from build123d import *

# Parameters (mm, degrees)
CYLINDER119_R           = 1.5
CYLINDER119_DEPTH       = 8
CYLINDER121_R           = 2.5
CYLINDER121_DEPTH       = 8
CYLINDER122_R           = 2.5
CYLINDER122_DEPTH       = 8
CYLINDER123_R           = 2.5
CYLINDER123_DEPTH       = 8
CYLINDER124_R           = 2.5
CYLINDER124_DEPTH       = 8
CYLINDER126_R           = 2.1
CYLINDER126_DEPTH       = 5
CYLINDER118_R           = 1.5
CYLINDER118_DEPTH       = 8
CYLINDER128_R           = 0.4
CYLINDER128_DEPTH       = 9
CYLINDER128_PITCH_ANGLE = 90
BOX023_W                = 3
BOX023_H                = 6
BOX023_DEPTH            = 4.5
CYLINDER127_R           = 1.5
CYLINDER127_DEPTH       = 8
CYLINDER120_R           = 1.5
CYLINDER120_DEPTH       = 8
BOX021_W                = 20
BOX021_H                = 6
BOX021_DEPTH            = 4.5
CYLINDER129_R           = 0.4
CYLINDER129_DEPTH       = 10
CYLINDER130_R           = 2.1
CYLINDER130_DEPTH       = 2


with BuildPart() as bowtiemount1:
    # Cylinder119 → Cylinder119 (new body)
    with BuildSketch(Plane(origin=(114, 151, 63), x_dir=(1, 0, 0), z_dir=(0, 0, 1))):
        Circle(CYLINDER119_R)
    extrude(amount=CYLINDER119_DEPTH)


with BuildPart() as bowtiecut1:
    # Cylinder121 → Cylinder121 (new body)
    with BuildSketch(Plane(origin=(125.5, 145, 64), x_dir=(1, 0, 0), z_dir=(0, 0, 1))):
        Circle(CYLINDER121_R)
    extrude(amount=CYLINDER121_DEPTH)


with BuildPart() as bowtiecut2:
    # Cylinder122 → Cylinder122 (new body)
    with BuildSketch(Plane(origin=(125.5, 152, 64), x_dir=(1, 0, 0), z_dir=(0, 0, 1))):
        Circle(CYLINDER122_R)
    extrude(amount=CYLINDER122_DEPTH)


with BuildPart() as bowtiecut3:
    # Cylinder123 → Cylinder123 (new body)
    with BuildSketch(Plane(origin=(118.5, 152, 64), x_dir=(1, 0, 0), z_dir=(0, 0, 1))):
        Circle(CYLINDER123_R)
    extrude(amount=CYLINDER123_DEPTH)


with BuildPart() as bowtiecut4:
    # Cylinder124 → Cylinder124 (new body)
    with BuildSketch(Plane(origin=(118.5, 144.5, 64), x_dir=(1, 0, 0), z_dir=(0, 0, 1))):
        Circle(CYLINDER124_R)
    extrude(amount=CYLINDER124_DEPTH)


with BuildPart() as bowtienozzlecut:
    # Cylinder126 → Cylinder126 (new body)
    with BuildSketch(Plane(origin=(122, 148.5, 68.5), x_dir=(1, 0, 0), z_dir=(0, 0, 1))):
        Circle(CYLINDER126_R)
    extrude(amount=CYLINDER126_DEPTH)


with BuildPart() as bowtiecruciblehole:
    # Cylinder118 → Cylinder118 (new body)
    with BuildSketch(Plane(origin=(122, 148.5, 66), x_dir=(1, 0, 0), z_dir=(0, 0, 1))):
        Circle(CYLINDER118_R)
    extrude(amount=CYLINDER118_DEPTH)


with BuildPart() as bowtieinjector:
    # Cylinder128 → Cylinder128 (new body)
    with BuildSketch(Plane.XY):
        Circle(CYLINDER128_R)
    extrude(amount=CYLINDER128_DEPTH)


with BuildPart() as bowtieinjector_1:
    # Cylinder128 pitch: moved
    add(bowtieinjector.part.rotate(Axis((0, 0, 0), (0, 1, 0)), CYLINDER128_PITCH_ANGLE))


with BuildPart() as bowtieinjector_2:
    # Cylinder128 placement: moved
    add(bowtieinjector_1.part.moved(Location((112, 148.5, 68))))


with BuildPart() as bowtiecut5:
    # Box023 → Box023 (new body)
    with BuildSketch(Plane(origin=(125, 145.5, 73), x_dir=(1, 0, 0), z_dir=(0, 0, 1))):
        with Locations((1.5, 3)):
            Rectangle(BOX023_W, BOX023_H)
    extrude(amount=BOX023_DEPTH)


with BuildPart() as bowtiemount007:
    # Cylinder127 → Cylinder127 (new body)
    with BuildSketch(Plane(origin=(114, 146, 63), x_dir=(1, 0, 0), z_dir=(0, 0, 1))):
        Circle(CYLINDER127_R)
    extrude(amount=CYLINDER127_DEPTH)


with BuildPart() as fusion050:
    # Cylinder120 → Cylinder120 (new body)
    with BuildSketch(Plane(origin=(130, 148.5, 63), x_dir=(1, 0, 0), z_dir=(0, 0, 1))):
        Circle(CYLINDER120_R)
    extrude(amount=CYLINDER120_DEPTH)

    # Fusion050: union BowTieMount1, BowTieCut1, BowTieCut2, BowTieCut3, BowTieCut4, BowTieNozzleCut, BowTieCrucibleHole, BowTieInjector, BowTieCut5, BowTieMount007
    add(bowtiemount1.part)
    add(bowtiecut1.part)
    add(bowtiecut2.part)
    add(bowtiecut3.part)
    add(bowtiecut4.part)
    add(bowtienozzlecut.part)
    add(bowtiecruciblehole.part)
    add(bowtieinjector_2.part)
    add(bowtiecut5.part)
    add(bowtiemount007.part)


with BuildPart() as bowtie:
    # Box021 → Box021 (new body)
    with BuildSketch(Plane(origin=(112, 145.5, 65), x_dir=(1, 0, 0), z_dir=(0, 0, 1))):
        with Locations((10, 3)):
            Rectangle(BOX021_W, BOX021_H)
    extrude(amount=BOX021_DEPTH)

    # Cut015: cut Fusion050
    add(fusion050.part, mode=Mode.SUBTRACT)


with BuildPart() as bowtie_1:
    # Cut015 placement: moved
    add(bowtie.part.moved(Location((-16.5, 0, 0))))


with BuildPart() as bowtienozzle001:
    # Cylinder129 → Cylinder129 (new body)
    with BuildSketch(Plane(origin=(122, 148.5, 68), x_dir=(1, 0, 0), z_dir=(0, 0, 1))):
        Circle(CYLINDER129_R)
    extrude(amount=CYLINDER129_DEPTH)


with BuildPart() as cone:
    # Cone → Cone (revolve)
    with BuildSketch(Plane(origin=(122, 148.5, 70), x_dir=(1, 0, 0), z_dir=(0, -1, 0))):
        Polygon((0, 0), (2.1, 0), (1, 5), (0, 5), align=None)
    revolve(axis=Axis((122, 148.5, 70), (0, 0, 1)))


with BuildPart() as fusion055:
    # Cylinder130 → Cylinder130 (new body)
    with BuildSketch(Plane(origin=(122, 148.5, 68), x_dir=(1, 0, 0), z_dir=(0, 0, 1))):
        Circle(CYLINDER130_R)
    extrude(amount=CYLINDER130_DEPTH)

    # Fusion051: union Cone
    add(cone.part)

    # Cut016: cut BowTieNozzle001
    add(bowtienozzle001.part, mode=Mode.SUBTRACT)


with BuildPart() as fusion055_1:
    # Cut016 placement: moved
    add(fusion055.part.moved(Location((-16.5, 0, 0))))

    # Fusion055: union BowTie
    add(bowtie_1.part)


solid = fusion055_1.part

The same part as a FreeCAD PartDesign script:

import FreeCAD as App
import Part
import Sketcher
Q = App.Units.Quantity

doc = App.newDocument("Part")
body = doc.addObject("PartDesign::Body", "Body")

# Sketch on XY plane
sketch1 = doc.addObject("Sketcher::SketchObject", "Sketch")
body.addObject(sketch1)
sketch1.AttachmentSupport = (doc.XY_Plane, [""])
sketch1.MapMode = "FlatFace"
sketch1.AttachmentOffset = App.Placement(App.Vector(0, 0, 63), App.Rotation())
sketch1.addGeometry(Part.Circle(App.Vector(114, 151, 0), App.Vector(0, 0, 1), 1.5), False)
sketch1.addConstraint([
    Sketcher.Constraint("Diameter", 0, Q("3 mm")),
    Sketcher.Constraint("DistanceX", -1, 1, 0, 3, Q("114 mm")),
    Sketcher.Constraint("DistanceY", -1, 1, 0, 3, Q("151 mm")),
])
pad1 = doc.addObject("PartDesign::Pad", "Pad")
body.addObject(pad1)
pad1.Profile = sketch1
pad1.Length = 8
body2 = doc.addObject("PartDesign::Body", "Body001")

# Sketch on XY plane
sketch2 = doc.addObject("Sketcher::SketchObject", "Sketch001")
body2.addObject(sketch2)
sketch2.AttachmentSupport = (doc.getObject("XY_Plane001"), [""])
sketch2.MapMode = "FlatFace"
sketch2.AttachmentOffset = App.Placement(App.Vector(0, 0, 64), App.Rotation())
sketch2.addGeometry(Part.Circle(App.Vector(125.5, 145, 0), App.Vector(0, 0, 1), 2.5), False)
sketch2.addConstraint([
    Sketcher.Constraint("Diameter", 0, Q("5 mm")),
    Sketcher.Constraint("DistanceY", -1, 1, 0, 3, Q("145 mm")),
    Sketcher.Constraint("DistanceX", -1, 1, 0, 3, Q("125.5 mm")),
])
pad2 = doc.addObject("PartDesign::Pad", "Pad001")
body2.addObject(pad2)
pad2.Profile = sketch2
pad2.Length = 8
body3 = doc.addObject("PartDesign::Body", "Body002")

# Sketch on XY plane
sketch3 = doc.addObject("Sketcher::SketchObject", "Sketch002")
body3.addObject(sketch3)
sketch3.AttachmentSupport = (doc.getObject("XY_Plane002"), [""])
sketch3.MapMode = "FlatFace"
sketch3.AttachmentOffset = App.Placement(App.Vector(0, 0, 64), App.Rotation())
sketch3.addGeometry(Part.Circle(App.Vector(125.5, 152, 0), App.Vector(0, 0, 1), 2.5), False)
sketch3.addConstraint([
    Sketcher.Constraint("Diameter", 0, Q("5 mm")),
    Sketcher.Constraint("DistanceY", -1, 1, 0, 3, Q("152 mm")),
    Sketcher.Constraint("DistanceX", -1, 1, 0, 3, Q("125.5 mm")),
])
pad3 = doc.addObject("PartDesign::Pad", "Pad002")
body3.addObject(pad3)
pad3.Profile = sketch3
pad3.Length = 8
body4 = doc.addObject("PartDesign::Body", "Body003")

# Sketch on XY plane
sketch4 = doc.addObject("Sketcher::SketchObject", "Sketch003")
body4.addObject(sketch4)
sketch4.AttachmentSupport = (doc.getObject("XY_Plane003"), [""])
sketch4.MapMode = "FlatFace"
sketch4.AttachmentOffset = App.Placement(App.Vector(0, 0, 64), App.Rotation())
sketch4.addGeometry(Part.Circle(App.Vector(118.5, 152, 0), App.Vector(0, 0, 1), 2.5), False)
sketch4.addConstraint([
    Sketcher.Constraint("Diameter", 0, Q("5 mm")),
    Sketcher.Constraint("DistanceY", -1, 1, 0, 3, Q("152 mm")),
    Sketcher.Constraint("DistanceX", -1, 1, 0, 3, Q("118.5 mm")),
])
pad4 = doc.addObject("PartDesign::Pad", "Pad003")
body4.addObject(pad4)
pad4.Profile = sketch4
pad4.Length = 8
body5 = doc.addObject("PartDesign::Body", "Body004")

# Sketch on XY plane
sketch5 = doc.addObject("Sketcher::SketchObject", "Sketch004")
body5.addObject(sketch5)
sketch5.AttachmentSupport = (doc.getObject("XY_Plane004"), [""])
sketch5.MapMode = "FlatFace"
sketch5.AttachmentOffset = App.Placement(App.Vector(0, 0, 64), App.Rotation())
sketch5.addGeometry(Part.Circle(App.Vector(118.5, 144.5, 0), App.Vector(0, 0, 1), 2.5), False)
sketch5.addConstraint([
    Sketcher.Constraint("Diameter", 0, Q("5 mm")),
    Sketcher.Constraint("DistanceX", -1, 1, 0, 3, Q("118.5 mm")),
    Sketcher.Constraint("DistanceY", -1, 1, 0, 3, Q("144.5 mm")),
])
pad5 = doc.addObject("PartDesign::Pad", "Pad004")
body5.addObject(pad5)
pad5.Profile = sketch5
pad5.Length = 8
body6 = doc.addObject("PartDesign::Body", "Body005")

# Sketch on XY plane
sketch6 = doc.addObject("Sketcher::SketchObject", "Sketch005")
body6.addObject(sketch6)
sketch6.AttachmentSupport = (doc.getObject("XY_Plane005"), [""])
sketch6.MapMode = "FlatFace"
sketch6.AttachmentOffset = App.Placement(App.Vector(0, 0, 68.5), App.Rotation())
sketch6.addGeometry(Part.Circle(App.Vector(122, 148.5, 0), App.Vector(0, 0, 1), 2.1), False)
sketch6.addConstraint([
    Sketcher.Constraint("Diameter", 0, Q("4.2 mm")),
    Sketcher.Constraint("DistanceX", -1, 1, 0, 3, Q("122 mm")),
    Sketcher.Constraint("DistanceY", -1, 1, 0, 3, Q("148.5 mm")),
])
pad6 = doc.addObject("PartDesign::Pad", "Pad005")
body6.addObject(pad6)
pad6.Profile = sketch6
pad6.Length = 5
body7 = doc.addObject("PartDesign::Body", "Body006")

# Sketch on XY plane
sketch7 = doc.addObject("Sketcher::SketchObject", "Sketch006")
body7.addObject(sketch7)
sketch7.AttachmentSupport = (doc.getObject("XY_Plane006"), [""])
sketch7.MapMode = "FlatFace"
sketch7.AttachmentOffset = App.Placement(App.Vector(0, 0, 66), App.Rotation())
sketch7.addGeometry(Part.Circle(App.Vector(122, 148.5, 0), App.Vector(0, 0, 1), 1.5), False)
sketch7.addConstraint([
    Sketcher.Constraint("Diameter", 0, Q("3 mm")),
    Sketcher.Constraint("DistanceX", -1, 1, 0, 3, Q("122 mm")),
    Sketcher.Constraint("DistanceY", -1, 1, 0, 3, Q("148.5 mm")),
])
pad7 = doc.addObject("PartDesign::Pad", "Pad006")
body7.addObject(pad7)
pad7.Profile = sketch7
pad7.Length = 8
body8 = doc.addObject("PartDesign::Body", "Body007")

# Sketch on XY plane
sketch8 = doc.addObject("Sketcher::SketchObject", "Sketch007")
body8.addObject(sketch8)
sketch8.AttachmentSupport = (doc.getObject("XY_Plane007"), [""])
sketch8.MapMode = "FlatFace"
sketch8.addGeometry(Part.Circle(App.Vector(0, 0, 0), App.Vector(0, 0, 1), 0.4), False)
sketch8.addConstraint([
    Sketcher.Constraint("Coincident", 0, 3, -1, 1),
    Sketcher.Constraint("Diameter", 0, Q("0.8 mm")),
])
pad8 = doc.addObject("PartDesign::Pad", "Pad007")
body8.addObject(pad8)
pad8.Profile = sketch8
pad8.Length = 9
body9 = doc.addObject("PartDesign::Body", "Body008")
doc.recompute()

body8.Placement = App.Placement(App.Vector(0, 0, 0), App.Rotation(App.Vector(0, 1, 0), 90))
boolean = doc.addObject("PartDesign::Boolean", "Boolean")
body9.addObject(boolean)
boolean.Type = "Fuse"
boolean.addObjects([body8])
body10 = doc.addObject("PartDesign::Body", "Body009")
doc.recompute()

body9.Placement = App.Placement(App.Vector(112, 148.5, 68), App.Rotation(App.Vector(0, 0, 1), 0))
boolean2 = doc.addObject("PartDesign::Boolean", "Boolean001")
body10.addObject(boolean2)
boolean2.Type = "Fuse"
boolean2.addObjects([body9])
body11 = doc.addObject("PartDesign::Body", "Body010")

# Sketch on XY plane
sketch9 = doc.addObject("Sketcher::SketchObject", "Sketch008")
body11.addObject(sketch9)
sketch9.AttachmentSupport = (doc.getObject("XY_Plane010"), [""])
sketch9.MapMode = "FlatFace"
sketch9.AttachmentOffset = App.Placement(App.Vector(0, 0, 73), App.Rotation())
sketch9.addGeometry([
    Part.LineSegment(App.Vector(125, 151.5, 0), App.Vector(125, 145.5, 0)),
    Part.LineSegment(App.Vector(125, 145.5, 0), App.Vector(128, 145.5, 0)),
    Part.LineSegment(App.Vector(128, 145.5, 0), App.Vector(128, 151.5, 0)),
    Part.LineSegment(App.Vector(128, 151.5, 0), App.Vector(125, 151.5, 0)),
], False)
sketch9.addConstraint([
    Sketcher.Constraint("Coincident", 0, 2, 1, 1),
    Sketcher.Constraint("Coincident", 1, 2, 2, 1),
    Sketcher.Constraint("Coincident", 2, 2, 3, 1),
    Sketcher.Constraint("Coincident", 3, 2, 0, 1),
    Sketcher.Constraint("Vertical", 0),
    Sketcher.Constraint("Horizontal", 1),
    Sketcher.Constraint("Vertical", 2),
    Sketcher.Constraint("Horizontal", 3),
    Sketcher.Constraint("DistanceX", 1, 1, 1, 2, Q("3 mm")),
    Sketcher.Constraint("DistanceY", 0, 2, 0, 1, Q("6 mm")),
    Sketcher.Constraint("DistanceX", -1, 1, 0, 2, Q("125 mm")),
    Sketcher.Constraint("DistanceY", -1, 1, 0, 2, Q("145.5 mm")),
])
pad9 = doc.addObject("PartDesign::Pad", "Pad008")
body11.addObject(pad9)
pad9.Profile = sketch9
pad9.Length = 4.5
body12 = doc.addObject("PartDesign::Body", "Body011")

# Sketch on XY plane
sketch10 = doc.addObject("Sketcher::SketchObject", "Sketch009")
body12.addObject(sketch10)
sketch10.AttachmentSupport = (doc.getObject("XY_Plane011"), [""])
sketch10.MapMode = "FlatFace"
sketch10.AttachmentOffset = App.Placement(App.Vector(0, 0, 63), App.Rotation())
sketch10.addGeometry(Part.Circle(App.Vector(114, 146, 0), App.Vector(0, 0, 1), 1.5), False)
sketch10.addConstraint([
    Sketcher.Constraint("Diameter", 0, Q("3 mm")),
    Sketcher.Constraint("DistanceX", -1, 1, 0, 3, Q("114 mm")),
    Sketcher.Constraint("DistanceY", -1, 1, 0, 3, Q("146 mm")),
])
pad10 = doc.addObject("PartDesign::Pad", "Pad009")
body12.addObject(pad10)
pad10.Profile = sketch10
pad10.Length = 8
body13 = doc.addObject("PartDesign::Body", "Body012")
body13.AllowCompound = True

# Sketch on XY plane
sketch11 = doc.addObject("Sketcher::SketchObject", "Sketch010")
body13.addObject(sketch11)
sketch11.AttachmentSupport = (doc.getObject("XY_Plane012"), [""])
sketch11.MapMode = "FlatFace"
sketch11.AttachmentOffset = App.Placement(App.Vector(0, 0, 63), App.Rotation())
sketch11.addGeometry(Part.Circle(App.Vector(130, 148.5, 0), App.Vector(0, 0, 1), 1.5), False)
sketch11.addConstraint([
    Sketcher.Constraint("Diameter", 0, Q("3 mm")),
    Sketcher.Constraint("DistanceX", -1, 1, 0, 3, Q("130 mm")),
    Sketcher.Constraint("DistanceY", -1, 1, 0, 3, Q("148.5 mm")),
])
pad11 = doc.addObject("PartDesign::Pad", "Pad010")
body13.addObject(pad11)
pad11.Profile = sketch11
pad11.Length = 8
doc.recompute()

boolean3 = doc.addObject("PartDesign::Boolean", "Boolean002")
body13.addObject(boolean3)
boolean3.Type = "Fuse"
boolean3.addObjects([body])
doc.recompute()

boolean4 = doc.addObject("PartDesign::Boolean", "Boolean003")
body13.addObject(boolean4)
boolean4.Type = "Fuse"
boolean4.addObjects([body2])
doc.recompute()

boolean5 = doc.addObject("PartDesign::Boolean", "Boolean004")
body13.addObject(boolean5)
boolean5.Type = "Fuse"
boolean5.addObjects([body3])
doc.recompute()

boolean6 = doc.addObject("PartDesign::Boolean", "Boolean005")
body13.addObject(boolean6)
boolean6.Type = "Fuse"
boolean6.addObjects([body4])
doc.recompute()

boolean7 = doc.addObject("PartDesign::Boolean", "Boolean006")
body13.addObject(boolean7)
boolean7.Type = "Fuse"
boolean7.addObjects([body5])
doc.recompute()

boolean8 = doc.addObject("PartDesign::Boolean", "Boolean007")
body13.addObject(boolean8)
boolean8.Type = "Fuse"
boolean8.addObjects([body6])
doc.recompute()

boolean9 = doc.addObject("PartDesign::Boolean", "Boolean008")
body13.addObject(boolean9)
boolean9.Type = "Fuse"
boolean9.addObjects([body7])
doc.recompute()

boolean10 = doc.addObject("PartDesign::Boolean", "Boolean009")
body13.addObject(boolean10)
boolean10.Type = "Fuse"
boolean10.addObjects([body10])
doc.recompute()

boolean11 = doc.addObject("PartDesign::Boolean", "Boolean010")
body13.addObject(boolean11)
boolean11.Type = "Fuse"
boolean11.addObjects([body11])
doc.recompute()

boolean12 = doc.addObject("PartDesign::Boolean", "Boolean011")
body13.addObject(boolean12)
boolean12.Type = "Fuse"
boolean12.addObjects([body12])
body14 = doc.addObject("PartDesign::Body", "Body013")

# Sketch on XY plane
sketch12 = doc.addObject("Sketcher::SketchObject", "Sketch011")
body14.addObject(sketch12)
sketch12.AttachmentSupport = (doc.getObject("XY_Plane013"), [""])
sketch12.MapMode = "FlatFace"
sketch12.AttachmentOffset = App.Placement(App.Vector(0, 0, 65), App.Rotation())
sketch12.addGeometry([
    Part.LineSegment(App.Vector(112, 151.5, 0), App.Vector(112, 145.5, 0)),
    Part.LineSegment(App.Vector(112, 145.5, 0), App.Vector(132, 145.5, 0)),
    Part.LineSegment(App.Vector(132, 145.5, 0), App.Vector(132, 151.5, 0)),
    Part.LineSegment(App.Vector(132, 151.5, 0), App.Vector(112, 151.5, 0)),
], False)
sketch12.addConstraint([
    Sketcher.Constraint("Coincident", 0, 2, 1, 1),
    Sketcher.Constraint("Coincident", 1, 2, 2, 1),
    Sketcher.Constraint("Coincident", 2, 2, 3, 1),
    Sketcher.Constraint("Coincident", 3, 2, 0, 1),
    Sketcher.Constraint("Vertical", 0),
    Sketcher.Constraint("Horizontal", 1),
    Sketcher.Constraint("Vertical", 2),
    Sketcher.Constraint("Horizontal", 3),
    Sketcher.Constraint("DistanceX", 1, 1, 1, 2, Q("20 mm")),
    Sketcher.Constraint("DistanceY", 0, 2, 0, 1, Q("6 mm")),
    Sketcher.Constraint("DistanceX", -1, 1, 0, 2, Q("112 mm")),
    Sketcher.Constraint("DistanceY", -1, 1, 0, 2, Q("145.5 mm")),
])
pad12 = doc.addObject("PartDesign::Pad", "Pad011")
body14.addObject(pad12)
pad12.Profile = sketch12
pad12.Length = 4.5
doc.recompute()

boolean13 = doc.addObject("PartDesign::Boolean", "Boolean012")
body14.addObject(boolean13)
boolean13.Type = "Cut"
boolean13.addObjects([body13])
body15 = doc.addObject("PartDesign::Body", "Body014")
doc.recompute()

body14.Placement = App.Placement(App.Vector(-16.5, 0, 0), App.Rotation(App.Vector(0, 0, 1), 0))
boolean14 = doc.addObject("PartDesign::Boolean", "Boolean013")
body15.addObject(boolean14)
boolean14.Type = "Fuse"
boolean14.addObjects([body14])
body16 = doc.addObject("PartDesign::Body", "Body015")

# Sketch on XY plane
sketch13 = doc.addObject("Sketcher::SketchObject", "Sketch012")
body16.addObject(sketch13)
sketch13.AttachmentSupport = (doc.getObject("XY_Plane015"), [""])
sketch13.MapMode = "FlatFace"
sketch13.AttachmentOffset = App.Placement(App.Vector(0, 0, 68), App.Rotation())
sketch13.addGeometry(Part.Circle(App.Vector(122, 148.5, 0), App.Vector(0, 0, 1), 0.4), False)
sketch13.addConstraint([
    Sketcher.Constraint("Diameter", 0, Q("0.8 mm")),
    Sketcher.Constraint("DistanceX", -1, 1, 0, 3, Q("122 mm")),
    Sketcher.Constraint("DistanceY", -1, 1, 0, 3, Q("148.5 mm")),
])
pad13 = doc.addObject("PartDesign::Pad", "Pad012")
body16.addObject(pad13)
pad13.Profile = sketch13
pad13.Length = 10
body17 = doc.addObject("PartDesign::Body", "Body016")

# Sketch on XZ plane
sketch14 = doc.addObject("Sketcher::SketchObject", "Sketch013")
body17.addObject(sketch14)
sketch14.AttachmentSupport = (doc.getObject("XZ_Plane016"), [""])
sketch14.MapMode = "FlatFace"
sketch14.AttachmentOffset = App.Placement(App.Vector(0, 0, -148.5), App.Rotation())
sketch14.addGeometry([
    Part.LineSegment(App.Vector(122, 70, 0), App.Vector(124.1, 70, 0)),
    Part.LineSegment(App.Vector(124.1, 70, 0), App.Vector(123, 75, 0)),
    Part.LineSegment(App.Vector(123, 75, 0), App.Vector(122, 75, 0)),
    Part.LineSegment(App.Vector(122, 75, 0), App.Vector(122, 70, 0)),
], False)
sketch14.addGeometry(Part.LineSegment(App.Vector(122, 70, 0), App.Vector(122, 75, 0)), True)  # axis
sketch14.addConstraint([
    Sketcher.Constraint("Coincident", 0, 2, 1, 1),
    Sketcher.Constraint("Coincident", 1, 2, 2, 1),
    Sketcher.Constraint("Coincident", 2, 2, 3, 1),
    Sketcher.Constraint("Coincident", 3, 2, 0, 1),
    Sketcher.Constraint("Horizontal", 0),
    Sketcher.Constraint("Horizontal", 2),
    Sketcher.Constraint("Vertical", 3),
    Sketcher.Constraint("Vertical", 4),
    Sketcher.Constraint("Coincident", 4, 1, 3, 2),
    Sketcher.Constraint("Horizontal", 1, 2, 4, 2),
    Sketcher.Constraint("DistanceX", 2, 2, 2, 1, Q("1 mm")),
    Sketcher.Constraint("DistanceY", 3, 2, 3, 1, Q("5 mm")),
    Sketcher.Constraint("DistanceX", 0, 1, 0, 2, Q("2.1 mm")),
    Sketcher.Constraint("DistanceY", -1, 1, 0, 2, Q("70 mm")),
    Sketcher.Constraint("DistanceX", -1, 1, 1, 2, Q("123 mm")),
])
revolution = doc.addObject("PartDesign::Revolution", "Revolution")
body17.addObject(revolution)
revolution.Profile = sketch14
revolution.ReferenceAxis = (sketch14, ["Axis0"])
revolution.Angle = 360
body18 = doc.addObject("PartDesign::Body", "Body017")

# Sketch on XY plane
sketch15 = doc.addObject("Sketcher::SketchObject", "Sketch014")
body18.addObject(sketch15)
sketch15.AttachmentSupport = (doc.getObject("XY_Plane017"), [""])
sketch15.MapMode = "FlatFace"
sketch15.AttachmentOffset = App.Placement(App.Vector(0, 0, 68), App.Rotation())
sketch15.addGeometry(Part.Circle(App.Vector(122, 148.5, 0), App.Vector(0, 0, 1), 2.1), False)
sketch15.addConstraint([
    Sketcher.Constraint("Diameter", 0, Q("4.2 mm")),
    Sketcher.Constraint("DistanceX", -1, 1, 0, 3, Q("122 mm")),
    Sketcher.Constraint("DistanceY", -1, 1, 0, 3, Q("148.5 mm")),
])
pad14 = doc.addObject("PartDesign::Pad", "Pad013")
body18.addObject(pad14)
pad14.Profile = sketch15
pad14.Length = 2
doc.recompute()

boolean15 = doc.addObject("PartDesign::Boolean", "Boolean014")
body18.addObject(boolean15)
boolean15.Type = "Fuse"
boolean15.addObjects([body17])
doc.recompute()

boolean16 = doc.addObject("PartDesign::Boolean", "Boolean015")
body18.addObject(boolean16)
boolean16.Type = "Cut"
boolean16.addObjects([body16])
body19 = doc.addObject("PartDesign::Body", "Body018")
doc.recompute()

body18.Placement = App.Placement(App.Vector(-16.5, 0, 0), App.Rotation(App.Vector(0, 0, 1), 0))
boolean17 = doc.addObject("PartDesign::Boolean", "Boolean016")
body19.addObject(boolean17)
boolean17.Type = "Fuse"
boolean17.addObjects([body18])
doc.recompute()

boolean18 = doc.addObject("PartDesign::Boolean", "Boolean017")
body19.addObject(boolean18)
boolean18.Type = "Fuse"
boolean18.addObjects([body15])

doc.recompute()
